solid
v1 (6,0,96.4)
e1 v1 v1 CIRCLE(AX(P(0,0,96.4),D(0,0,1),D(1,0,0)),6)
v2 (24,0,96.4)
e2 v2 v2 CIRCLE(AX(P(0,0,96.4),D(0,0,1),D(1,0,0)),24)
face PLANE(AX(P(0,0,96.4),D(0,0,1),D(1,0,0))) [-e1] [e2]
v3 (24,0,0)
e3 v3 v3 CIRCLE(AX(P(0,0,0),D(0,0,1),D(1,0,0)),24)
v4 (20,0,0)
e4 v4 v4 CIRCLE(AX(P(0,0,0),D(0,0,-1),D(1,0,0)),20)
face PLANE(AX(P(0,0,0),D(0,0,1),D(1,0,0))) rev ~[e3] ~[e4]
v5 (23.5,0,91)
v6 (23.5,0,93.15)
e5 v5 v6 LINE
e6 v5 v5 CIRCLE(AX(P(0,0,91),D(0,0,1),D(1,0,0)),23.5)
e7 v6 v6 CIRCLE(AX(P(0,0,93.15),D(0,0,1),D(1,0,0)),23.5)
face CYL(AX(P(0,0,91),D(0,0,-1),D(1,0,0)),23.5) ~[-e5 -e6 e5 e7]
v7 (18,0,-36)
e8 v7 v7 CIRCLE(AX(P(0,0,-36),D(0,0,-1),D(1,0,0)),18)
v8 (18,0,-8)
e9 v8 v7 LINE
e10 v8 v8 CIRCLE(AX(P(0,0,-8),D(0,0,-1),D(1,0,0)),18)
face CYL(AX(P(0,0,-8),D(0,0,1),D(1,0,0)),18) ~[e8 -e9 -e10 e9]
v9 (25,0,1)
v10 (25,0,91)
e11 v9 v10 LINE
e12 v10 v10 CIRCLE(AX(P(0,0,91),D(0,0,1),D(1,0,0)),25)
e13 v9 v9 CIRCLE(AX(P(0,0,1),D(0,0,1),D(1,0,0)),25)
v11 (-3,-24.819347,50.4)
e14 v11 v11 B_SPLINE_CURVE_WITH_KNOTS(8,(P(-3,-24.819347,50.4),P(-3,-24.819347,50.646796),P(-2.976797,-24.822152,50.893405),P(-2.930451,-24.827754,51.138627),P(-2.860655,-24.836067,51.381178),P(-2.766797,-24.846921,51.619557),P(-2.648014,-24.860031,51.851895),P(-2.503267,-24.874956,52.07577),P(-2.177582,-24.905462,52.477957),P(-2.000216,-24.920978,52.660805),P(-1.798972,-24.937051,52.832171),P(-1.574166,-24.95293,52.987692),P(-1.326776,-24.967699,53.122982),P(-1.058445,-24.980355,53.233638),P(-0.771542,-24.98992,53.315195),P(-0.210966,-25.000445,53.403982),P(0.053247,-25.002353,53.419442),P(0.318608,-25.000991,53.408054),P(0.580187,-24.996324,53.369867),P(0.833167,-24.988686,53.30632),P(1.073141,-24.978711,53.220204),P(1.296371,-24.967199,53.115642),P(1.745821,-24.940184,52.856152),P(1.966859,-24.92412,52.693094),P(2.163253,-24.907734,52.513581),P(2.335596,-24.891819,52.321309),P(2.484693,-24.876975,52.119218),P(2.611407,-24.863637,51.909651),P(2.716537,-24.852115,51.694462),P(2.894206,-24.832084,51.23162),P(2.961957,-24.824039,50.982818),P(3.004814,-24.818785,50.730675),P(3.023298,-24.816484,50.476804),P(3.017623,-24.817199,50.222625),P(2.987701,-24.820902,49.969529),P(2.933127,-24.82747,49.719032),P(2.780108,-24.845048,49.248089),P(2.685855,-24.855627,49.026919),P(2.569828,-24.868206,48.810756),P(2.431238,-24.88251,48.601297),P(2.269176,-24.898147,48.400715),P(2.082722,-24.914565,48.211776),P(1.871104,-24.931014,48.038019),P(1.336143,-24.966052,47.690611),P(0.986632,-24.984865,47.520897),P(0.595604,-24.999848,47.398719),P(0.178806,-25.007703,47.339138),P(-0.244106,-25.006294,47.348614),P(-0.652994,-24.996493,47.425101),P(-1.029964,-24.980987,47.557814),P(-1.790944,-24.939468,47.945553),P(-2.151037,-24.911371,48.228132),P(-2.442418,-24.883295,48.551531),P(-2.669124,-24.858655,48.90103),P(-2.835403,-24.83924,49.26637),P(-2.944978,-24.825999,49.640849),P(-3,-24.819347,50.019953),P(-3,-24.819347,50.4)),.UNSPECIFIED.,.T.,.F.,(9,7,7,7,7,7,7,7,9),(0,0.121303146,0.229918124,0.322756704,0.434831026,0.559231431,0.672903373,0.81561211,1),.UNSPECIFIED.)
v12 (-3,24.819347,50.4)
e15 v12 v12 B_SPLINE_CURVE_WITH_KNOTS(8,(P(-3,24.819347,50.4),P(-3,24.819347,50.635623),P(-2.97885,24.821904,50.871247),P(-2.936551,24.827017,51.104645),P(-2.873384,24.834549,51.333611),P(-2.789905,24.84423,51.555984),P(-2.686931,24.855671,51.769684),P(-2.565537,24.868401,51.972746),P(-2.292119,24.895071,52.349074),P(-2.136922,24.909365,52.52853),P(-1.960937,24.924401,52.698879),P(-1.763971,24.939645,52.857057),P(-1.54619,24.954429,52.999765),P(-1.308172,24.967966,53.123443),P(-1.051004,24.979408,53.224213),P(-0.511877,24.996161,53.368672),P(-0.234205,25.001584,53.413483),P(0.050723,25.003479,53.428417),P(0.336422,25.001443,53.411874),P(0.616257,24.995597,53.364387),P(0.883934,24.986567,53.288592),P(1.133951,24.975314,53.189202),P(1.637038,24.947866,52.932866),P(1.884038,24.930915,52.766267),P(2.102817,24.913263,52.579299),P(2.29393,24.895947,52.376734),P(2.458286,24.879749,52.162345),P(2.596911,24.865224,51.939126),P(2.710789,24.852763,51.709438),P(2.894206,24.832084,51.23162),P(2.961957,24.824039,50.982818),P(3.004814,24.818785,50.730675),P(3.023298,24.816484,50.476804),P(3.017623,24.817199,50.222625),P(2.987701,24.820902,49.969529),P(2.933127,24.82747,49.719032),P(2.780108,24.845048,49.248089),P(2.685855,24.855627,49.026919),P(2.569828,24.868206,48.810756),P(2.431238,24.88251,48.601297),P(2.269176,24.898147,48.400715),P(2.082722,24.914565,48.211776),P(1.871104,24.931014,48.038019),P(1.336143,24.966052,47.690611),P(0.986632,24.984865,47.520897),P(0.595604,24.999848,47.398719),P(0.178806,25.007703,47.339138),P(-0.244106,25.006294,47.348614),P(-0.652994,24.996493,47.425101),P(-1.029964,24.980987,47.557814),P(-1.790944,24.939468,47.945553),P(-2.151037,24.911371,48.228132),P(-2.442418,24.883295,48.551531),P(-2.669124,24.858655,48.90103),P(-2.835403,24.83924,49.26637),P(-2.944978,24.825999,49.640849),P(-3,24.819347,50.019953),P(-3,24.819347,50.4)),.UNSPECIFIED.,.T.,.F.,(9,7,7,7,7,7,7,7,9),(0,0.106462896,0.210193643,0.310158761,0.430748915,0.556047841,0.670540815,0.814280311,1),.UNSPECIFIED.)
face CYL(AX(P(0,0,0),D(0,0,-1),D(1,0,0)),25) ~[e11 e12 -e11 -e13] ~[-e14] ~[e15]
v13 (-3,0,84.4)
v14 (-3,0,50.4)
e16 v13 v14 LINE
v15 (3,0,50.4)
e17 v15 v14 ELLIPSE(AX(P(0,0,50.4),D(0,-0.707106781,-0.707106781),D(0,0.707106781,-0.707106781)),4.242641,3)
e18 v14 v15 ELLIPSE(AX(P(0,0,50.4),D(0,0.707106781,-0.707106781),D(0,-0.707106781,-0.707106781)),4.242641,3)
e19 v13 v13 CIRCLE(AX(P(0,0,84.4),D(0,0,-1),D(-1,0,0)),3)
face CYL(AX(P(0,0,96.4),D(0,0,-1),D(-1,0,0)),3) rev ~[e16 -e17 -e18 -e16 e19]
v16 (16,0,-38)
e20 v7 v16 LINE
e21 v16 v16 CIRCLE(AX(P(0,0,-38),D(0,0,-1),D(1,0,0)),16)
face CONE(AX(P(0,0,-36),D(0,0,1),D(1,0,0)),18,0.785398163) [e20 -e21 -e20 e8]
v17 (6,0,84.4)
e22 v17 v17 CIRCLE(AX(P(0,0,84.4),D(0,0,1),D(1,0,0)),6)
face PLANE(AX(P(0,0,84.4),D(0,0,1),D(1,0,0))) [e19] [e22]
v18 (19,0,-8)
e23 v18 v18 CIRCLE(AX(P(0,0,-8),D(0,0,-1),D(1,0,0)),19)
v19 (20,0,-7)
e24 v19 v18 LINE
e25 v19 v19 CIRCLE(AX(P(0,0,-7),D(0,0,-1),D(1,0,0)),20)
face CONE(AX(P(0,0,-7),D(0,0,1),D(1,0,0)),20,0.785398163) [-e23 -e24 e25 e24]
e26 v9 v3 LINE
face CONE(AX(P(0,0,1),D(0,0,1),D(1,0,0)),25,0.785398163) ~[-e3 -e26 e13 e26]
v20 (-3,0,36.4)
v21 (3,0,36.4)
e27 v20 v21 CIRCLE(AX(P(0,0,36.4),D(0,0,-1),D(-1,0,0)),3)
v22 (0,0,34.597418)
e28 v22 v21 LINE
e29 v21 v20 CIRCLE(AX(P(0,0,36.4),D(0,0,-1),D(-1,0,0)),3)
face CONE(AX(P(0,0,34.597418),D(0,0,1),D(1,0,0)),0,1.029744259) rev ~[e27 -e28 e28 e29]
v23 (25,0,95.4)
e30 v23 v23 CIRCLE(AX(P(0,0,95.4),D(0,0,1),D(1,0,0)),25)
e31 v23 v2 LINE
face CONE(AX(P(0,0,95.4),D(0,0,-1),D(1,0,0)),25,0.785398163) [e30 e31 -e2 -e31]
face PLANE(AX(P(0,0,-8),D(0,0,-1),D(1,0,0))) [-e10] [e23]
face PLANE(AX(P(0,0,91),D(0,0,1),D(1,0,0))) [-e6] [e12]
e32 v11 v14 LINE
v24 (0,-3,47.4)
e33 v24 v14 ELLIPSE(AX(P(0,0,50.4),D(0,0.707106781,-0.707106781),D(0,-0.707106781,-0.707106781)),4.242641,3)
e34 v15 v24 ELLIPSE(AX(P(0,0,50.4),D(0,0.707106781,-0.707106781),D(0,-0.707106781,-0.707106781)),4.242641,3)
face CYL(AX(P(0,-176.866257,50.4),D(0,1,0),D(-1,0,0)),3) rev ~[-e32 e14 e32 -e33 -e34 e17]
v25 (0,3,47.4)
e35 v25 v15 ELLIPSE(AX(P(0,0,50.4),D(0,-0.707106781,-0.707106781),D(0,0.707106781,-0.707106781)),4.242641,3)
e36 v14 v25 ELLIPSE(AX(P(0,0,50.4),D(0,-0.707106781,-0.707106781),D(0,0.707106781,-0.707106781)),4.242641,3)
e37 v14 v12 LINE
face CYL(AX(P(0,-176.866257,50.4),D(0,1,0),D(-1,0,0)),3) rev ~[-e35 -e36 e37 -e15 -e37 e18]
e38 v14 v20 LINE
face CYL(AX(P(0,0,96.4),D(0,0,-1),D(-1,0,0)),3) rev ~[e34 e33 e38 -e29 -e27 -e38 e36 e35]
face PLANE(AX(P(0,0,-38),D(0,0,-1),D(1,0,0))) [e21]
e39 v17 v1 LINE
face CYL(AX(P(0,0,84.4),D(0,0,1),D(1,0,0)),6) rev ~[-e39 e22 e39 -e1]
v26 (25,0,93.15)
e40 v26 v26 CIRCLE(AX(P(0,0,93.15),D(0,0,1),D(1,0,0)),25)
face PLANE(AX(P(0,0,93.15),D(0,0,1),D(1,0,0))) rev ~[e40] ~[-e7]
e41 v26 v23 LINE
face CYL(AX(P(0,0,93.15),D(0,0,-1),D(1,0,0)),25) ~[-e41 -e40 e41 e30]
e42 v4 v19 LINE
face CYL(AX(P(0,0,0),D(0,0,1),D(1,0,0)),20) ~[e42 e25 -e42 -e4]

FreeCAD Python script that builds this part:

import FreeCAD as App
import Part
import Sketcher

V = App.Vector
Q = App.Units.Quantity


def edges_at(feature, points):
    """Names of the edges that pass closest to the given points."""
    edges = feature.Shape.Edges
    near = lambda p: min(range(len(edges)), key=lambda i: edges[i].distToShape(Part.Vertex(*p))[0])
    return sorted({f"Edge{near(p) + 1}" for p in points})

doc = App.newDocument("Part")
body = doc.addObject("PartDesign::Body", "Body")

# Sketch on XY plane
sketch1 = body.newObject("Sketcher::SketchObject", "Sketch")
sketch1.AttachmentSupport = (doc.getObject("XY_Plane"), [""])
sketch1.MapMode = "FlatFace"
sketch1.addGeometry(Part.Circle(V(0, 0, 0), V(0, 0, 1), 25), False)
sketch1.addConstraint([
    Sketcher.Constraint("Coincident", 0, 3, -1, 1),
    Sketcher.Constraint("Diameter", 0, Q("50 mm")),
])
pad1 = body.newObject("PartDesign::Pad", "Pad")
pad1.Profile = sketch1
pad1.Length = 91

# Sketch on XY plane
sketch2 = body.newObject("Sketcher::SketchObject", "Sketch001")
sketch2.AttachmentSupport = (doc.getObject("XY_Plane"), [""])
sketch2.MapMode = "FlatFace"
sketch2.AttachmentOffset = App.Placement(V(0, 0, 91), App.Rotation())
sketch2.addGeometry(Part.Circle(V(0, 0, 0), V(0, 0, 1), 23.5), False)
sketch2.addConstraint([
    Sketcher.Constraint("Coincident", 0, 3, -1, 1),
    Sketcher.Constraint("Diameter", 0, Q("47 mm")),
])
pad2 = body.newObject("PartDesign::Pad", "Pad001")
pad2.Profile = sketch2
pad2.Length = 2.15

# Sketch on XY plane
sketch3 = body.newObject("Sketcher::SketchObject", "Sketch002")
sketch3.AttachmentSupport = (doc.getObject("XY_Plane"), [""])
sketch3.MapMode = "FlatFace"
sketch3.AttachmentOffset = App.Placement(V(0, 0, 93.15), App.Rotation())
sketch3.addGeometry(Part.Circle(V(0, 0, 0), V(0, 0, 1), 25), False)
sketch3.addConstraint([
    Sketcher.Constraint("Coincident", 0, 3, -1, 1),
    Sketcher.Constraint("Diameter", 0, Q("50 mm")),
])
pad3 = body.newObject("PartDesign::Pad", "Pad002")
pad3.Profile = sketch3
pad3.Length = 3.25
doc.recompute()

chamfer = body.newObject("PartDesign::Chamfer", "Chamfer")
chamfer.Base = (pad3, edges_at(pad3, [(-25, 0, 96.4)]))
chamfer.Size = 1

# Sketch on XY plane
sketch4 = body.newObject("Sketcher::SketchObject", "Sketch003")
sketch4.AttachmentSupport = (doc.getObject("XY_Plane"), [""])
sketch4.MapMode = "FlatFace"
sketch4.addGeometry(Part.Circle(V(0, 0, 0), V(0, 0, 1), 20), False)
sketch4.addConstraint([
    Sketcher.Constraint("Coincident", 0, 3, -1, 1),
    Sketcher.Constraint("Diameter", 0, Q("40 mm")),
])
pad4 = body.newObject("PartDesign::Pad", "Pad003")
pad4.Profile = sketch4
pad4.Length = 8
pad4.Reversed = True

# Sketch on XY plane
sketch5 = body.newObject("Sketcher::SketchObject", "Sketch004")
sketch5.AttachmentSupport = (doc.getObject("XY_Plane"), [""])
sketch5.MapMode = "FlatFace"
sketch5.AttachmentOffset = App.Placement(V(0, 0, -8), App.Rotation())
sketch5.addGeometry(Part.Circle(V(0, 0, 0), V(0, 0, 1), 18), False)
sketch5.addConstraint([
    Sketcher.Constraint("Coincident", 0, 3, -1, 1),
    Sketcher.Constraint("Diameter", 0, Q("36 mm")),
])
pad5 = body.newObject("PartDesign::Pad", "Pad004")
pad5.Profile = sketch5
pad5.Length = 30
pad5.Reversed = True
doc.recompute()

chamfer2 = body.newObject("PartDesign::Chamfer", "Chamfer001")
chamfer2.Base = (pad5, edges_at(pad5, [(-25, 0, 0), (-20, 0, -8)]))
chamfer2.Size = 1
doc.recompute()

chamfer3 = body.newObject("PartDesign::Chamfer", "Chamfer002")
chamfer3.Base = (chamfer2, edges_at(chamfer2, [(-18, 0, -38)]))
chamfer3.Size = 2

# Sketch on XY plane
sketch6 = body.newObject("Sketcher::SketchObject", "Sketch005")
sketch6.AttachmentSupport = (doc.getObject("XY_Plane"), [""])
sketch6.MapMode = "FlatFace"
sketch6.AttachmentOffset = App.Placement(V(0, 0, 96.4), App.Rotation())
sketch6.addGeometry(Part.Circle(V(0, 0, 0), V(0, 0, 1), 3), False)
sketch6.addConstraint([
    Sketcher.Constraint("Coincident", 0, 3, -1, 1),
    Sketcher.Constraint("Diameter", 0, Q("6 mm")),
])
doc.recompute()
hole = body.newObject("PartDesign::Hole", "Hole")
hole.Profile = sketch6
hole.ThreadType = "None"
hole.Diameter = 6
hole.DepthType = "Dimension"
hole.Depth = 60
hole.DrillPoint = "Angled"
hole.DrillPointAngle = 118
hole.HoleCutType = "Counterbore"
hole.HoleCutDiameter = 12
hole.HoleCutDepth = 12

# Sketch on XZ plane
sketch7 = body.newObject("Sketcher::SketchObject", "Sketch006")
sketch7.AttachmentSupport = (doc.getObject("XZ_Plane"), [""])
sketch7.MapMode = "FlatFace"
sketch7.AttachmentOffset = App.Placement(V(0, 0, 25), App.Rotation())
sketch7.addGeometry(Part.Circle(V(0, 50.4, 0), V(0, 0, 1), 3), False)
sketch7.addConstraint([
    Sketcher.Constraint("PointOnObject", 0, 3, -2),
    Sketcher.Constraint("Diameter", 0, Q("6 mm")),
    Sketcher.Constraint("DistanceY", -1, 1, 0, 3, Q("50.4 mm")),
])
doc.recompute()
hole2 = body.newObject("PartDesign::Hole", "Hole001")
hole2.Profile = sketch7
hole2.ThreadType = "None"
hole2.Diameter = 6
hole2.DepthType = "ThroughAll"

doc.recompute()
